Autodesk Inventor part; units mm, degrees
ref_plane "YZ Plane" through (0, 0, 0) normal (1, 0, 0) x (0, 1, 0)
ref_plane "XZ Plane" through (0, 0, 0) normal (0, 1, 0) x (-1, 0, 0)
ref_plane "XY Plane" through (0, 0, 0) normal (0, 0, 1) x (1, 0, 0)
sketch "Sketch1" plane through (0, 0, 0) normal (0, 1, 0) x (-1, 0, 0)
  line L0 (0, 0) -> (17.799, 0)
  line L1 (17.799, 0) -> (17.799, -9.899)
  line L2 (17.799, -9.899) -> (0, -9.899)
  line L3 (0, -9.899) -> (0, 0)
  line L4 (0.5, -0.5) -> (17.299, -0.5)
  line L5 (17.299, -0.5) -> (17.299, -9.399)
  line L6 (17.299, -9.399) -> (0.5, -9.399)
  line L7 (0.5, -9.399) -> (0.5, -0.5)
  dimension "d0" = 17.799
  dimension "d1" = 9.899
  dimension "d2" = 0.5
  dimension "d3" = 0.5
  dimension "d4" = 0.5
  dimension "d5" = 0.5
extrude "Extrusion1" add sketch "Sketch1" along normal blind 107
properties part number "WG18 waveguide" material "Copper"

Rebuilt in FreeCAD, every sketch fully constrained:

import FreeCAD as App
import Part
import Sketcher
Q = App.Units.Quantity


def add_polygon(sketch, points):
    """Adds a closed chain of lines whose ends are joined by coincident constraints."""
    first, n = sketch.GeometryCount, len(points)
    for a, b in zip(points, points[1:] + points[:1]):
        sketch.addGeometry(Part.LineSegment(App.Vector(*a, 0), App.Vector(*b, 0)), False)
    for i in range(n):
        sketch.addConstraint(Sketcher.Constraint("Coincident", first + i, 2, first + (i + 1) % n, 1))

doc = App.newDocument("Part")
body = doc.addObject("PartDesign::Body", "Body")

sketch1 = body.newObject("Sketcher::SketchObject", "Sketch")
sketch1.AttachmentSupport = (doc.getObject("XZ_Plane"), [""])
sketch1.MapMode = "FlatFace"
add_polygon(sketch1, [(-18, 0), (0, 0), (0, -10), (-18, -10)])
add_polygon(sketch1, [(0, -9), (0, 0), (-17, 0), (-17, -9)])
sketch1.addConstraint([
    Sketcher.Constraint("Horizontal", 0),
    Sketcher.Constraint("Vertical", 1),
    Sketcher.Constraint("Horizontal", 2),
    Sketcher.Constraint("Vertical", 3),
    Sketcher.Constraint("Vertical", 4),
    Sketcher.Constraint("Horizontal", 5),
    Sketcher.Constraint("Vertical", 6),
    Sketcher.Constraint("Horizontal", 7),
    Sketcher.Constraint("Coincident", 0, 2, -1, 1),
    Sketcher.Constraint("DistanceX", 4, 2, -1, 1, Q("0.5 mm")),
    Sketcher.Constraint("DistanceY", 4, 2, -1, 1, Q("0.5 mm")),
    Sketcher.Constraint("DistanceX", 3, 2, 5, 2, Q("0.5 mm")),
    Sketcher.Constraint("DistanceY", 2, 2, 6, 2, Q("0.5 mm")),
    Sketcher.Constraint("DistanceX", 0, 1, 0, 2, Q("17.799 mm")),
    Sketcher.Constraint("DistanceY", 1, 2, 1, 1, Q("9.899 mm")),
])
pad1 = body.newObject("PartDesign::Pad", "Pad")
pad1.Profile = sketch1
pad1.Length = 107
pad1.Reversed = True

doc.recompute()
